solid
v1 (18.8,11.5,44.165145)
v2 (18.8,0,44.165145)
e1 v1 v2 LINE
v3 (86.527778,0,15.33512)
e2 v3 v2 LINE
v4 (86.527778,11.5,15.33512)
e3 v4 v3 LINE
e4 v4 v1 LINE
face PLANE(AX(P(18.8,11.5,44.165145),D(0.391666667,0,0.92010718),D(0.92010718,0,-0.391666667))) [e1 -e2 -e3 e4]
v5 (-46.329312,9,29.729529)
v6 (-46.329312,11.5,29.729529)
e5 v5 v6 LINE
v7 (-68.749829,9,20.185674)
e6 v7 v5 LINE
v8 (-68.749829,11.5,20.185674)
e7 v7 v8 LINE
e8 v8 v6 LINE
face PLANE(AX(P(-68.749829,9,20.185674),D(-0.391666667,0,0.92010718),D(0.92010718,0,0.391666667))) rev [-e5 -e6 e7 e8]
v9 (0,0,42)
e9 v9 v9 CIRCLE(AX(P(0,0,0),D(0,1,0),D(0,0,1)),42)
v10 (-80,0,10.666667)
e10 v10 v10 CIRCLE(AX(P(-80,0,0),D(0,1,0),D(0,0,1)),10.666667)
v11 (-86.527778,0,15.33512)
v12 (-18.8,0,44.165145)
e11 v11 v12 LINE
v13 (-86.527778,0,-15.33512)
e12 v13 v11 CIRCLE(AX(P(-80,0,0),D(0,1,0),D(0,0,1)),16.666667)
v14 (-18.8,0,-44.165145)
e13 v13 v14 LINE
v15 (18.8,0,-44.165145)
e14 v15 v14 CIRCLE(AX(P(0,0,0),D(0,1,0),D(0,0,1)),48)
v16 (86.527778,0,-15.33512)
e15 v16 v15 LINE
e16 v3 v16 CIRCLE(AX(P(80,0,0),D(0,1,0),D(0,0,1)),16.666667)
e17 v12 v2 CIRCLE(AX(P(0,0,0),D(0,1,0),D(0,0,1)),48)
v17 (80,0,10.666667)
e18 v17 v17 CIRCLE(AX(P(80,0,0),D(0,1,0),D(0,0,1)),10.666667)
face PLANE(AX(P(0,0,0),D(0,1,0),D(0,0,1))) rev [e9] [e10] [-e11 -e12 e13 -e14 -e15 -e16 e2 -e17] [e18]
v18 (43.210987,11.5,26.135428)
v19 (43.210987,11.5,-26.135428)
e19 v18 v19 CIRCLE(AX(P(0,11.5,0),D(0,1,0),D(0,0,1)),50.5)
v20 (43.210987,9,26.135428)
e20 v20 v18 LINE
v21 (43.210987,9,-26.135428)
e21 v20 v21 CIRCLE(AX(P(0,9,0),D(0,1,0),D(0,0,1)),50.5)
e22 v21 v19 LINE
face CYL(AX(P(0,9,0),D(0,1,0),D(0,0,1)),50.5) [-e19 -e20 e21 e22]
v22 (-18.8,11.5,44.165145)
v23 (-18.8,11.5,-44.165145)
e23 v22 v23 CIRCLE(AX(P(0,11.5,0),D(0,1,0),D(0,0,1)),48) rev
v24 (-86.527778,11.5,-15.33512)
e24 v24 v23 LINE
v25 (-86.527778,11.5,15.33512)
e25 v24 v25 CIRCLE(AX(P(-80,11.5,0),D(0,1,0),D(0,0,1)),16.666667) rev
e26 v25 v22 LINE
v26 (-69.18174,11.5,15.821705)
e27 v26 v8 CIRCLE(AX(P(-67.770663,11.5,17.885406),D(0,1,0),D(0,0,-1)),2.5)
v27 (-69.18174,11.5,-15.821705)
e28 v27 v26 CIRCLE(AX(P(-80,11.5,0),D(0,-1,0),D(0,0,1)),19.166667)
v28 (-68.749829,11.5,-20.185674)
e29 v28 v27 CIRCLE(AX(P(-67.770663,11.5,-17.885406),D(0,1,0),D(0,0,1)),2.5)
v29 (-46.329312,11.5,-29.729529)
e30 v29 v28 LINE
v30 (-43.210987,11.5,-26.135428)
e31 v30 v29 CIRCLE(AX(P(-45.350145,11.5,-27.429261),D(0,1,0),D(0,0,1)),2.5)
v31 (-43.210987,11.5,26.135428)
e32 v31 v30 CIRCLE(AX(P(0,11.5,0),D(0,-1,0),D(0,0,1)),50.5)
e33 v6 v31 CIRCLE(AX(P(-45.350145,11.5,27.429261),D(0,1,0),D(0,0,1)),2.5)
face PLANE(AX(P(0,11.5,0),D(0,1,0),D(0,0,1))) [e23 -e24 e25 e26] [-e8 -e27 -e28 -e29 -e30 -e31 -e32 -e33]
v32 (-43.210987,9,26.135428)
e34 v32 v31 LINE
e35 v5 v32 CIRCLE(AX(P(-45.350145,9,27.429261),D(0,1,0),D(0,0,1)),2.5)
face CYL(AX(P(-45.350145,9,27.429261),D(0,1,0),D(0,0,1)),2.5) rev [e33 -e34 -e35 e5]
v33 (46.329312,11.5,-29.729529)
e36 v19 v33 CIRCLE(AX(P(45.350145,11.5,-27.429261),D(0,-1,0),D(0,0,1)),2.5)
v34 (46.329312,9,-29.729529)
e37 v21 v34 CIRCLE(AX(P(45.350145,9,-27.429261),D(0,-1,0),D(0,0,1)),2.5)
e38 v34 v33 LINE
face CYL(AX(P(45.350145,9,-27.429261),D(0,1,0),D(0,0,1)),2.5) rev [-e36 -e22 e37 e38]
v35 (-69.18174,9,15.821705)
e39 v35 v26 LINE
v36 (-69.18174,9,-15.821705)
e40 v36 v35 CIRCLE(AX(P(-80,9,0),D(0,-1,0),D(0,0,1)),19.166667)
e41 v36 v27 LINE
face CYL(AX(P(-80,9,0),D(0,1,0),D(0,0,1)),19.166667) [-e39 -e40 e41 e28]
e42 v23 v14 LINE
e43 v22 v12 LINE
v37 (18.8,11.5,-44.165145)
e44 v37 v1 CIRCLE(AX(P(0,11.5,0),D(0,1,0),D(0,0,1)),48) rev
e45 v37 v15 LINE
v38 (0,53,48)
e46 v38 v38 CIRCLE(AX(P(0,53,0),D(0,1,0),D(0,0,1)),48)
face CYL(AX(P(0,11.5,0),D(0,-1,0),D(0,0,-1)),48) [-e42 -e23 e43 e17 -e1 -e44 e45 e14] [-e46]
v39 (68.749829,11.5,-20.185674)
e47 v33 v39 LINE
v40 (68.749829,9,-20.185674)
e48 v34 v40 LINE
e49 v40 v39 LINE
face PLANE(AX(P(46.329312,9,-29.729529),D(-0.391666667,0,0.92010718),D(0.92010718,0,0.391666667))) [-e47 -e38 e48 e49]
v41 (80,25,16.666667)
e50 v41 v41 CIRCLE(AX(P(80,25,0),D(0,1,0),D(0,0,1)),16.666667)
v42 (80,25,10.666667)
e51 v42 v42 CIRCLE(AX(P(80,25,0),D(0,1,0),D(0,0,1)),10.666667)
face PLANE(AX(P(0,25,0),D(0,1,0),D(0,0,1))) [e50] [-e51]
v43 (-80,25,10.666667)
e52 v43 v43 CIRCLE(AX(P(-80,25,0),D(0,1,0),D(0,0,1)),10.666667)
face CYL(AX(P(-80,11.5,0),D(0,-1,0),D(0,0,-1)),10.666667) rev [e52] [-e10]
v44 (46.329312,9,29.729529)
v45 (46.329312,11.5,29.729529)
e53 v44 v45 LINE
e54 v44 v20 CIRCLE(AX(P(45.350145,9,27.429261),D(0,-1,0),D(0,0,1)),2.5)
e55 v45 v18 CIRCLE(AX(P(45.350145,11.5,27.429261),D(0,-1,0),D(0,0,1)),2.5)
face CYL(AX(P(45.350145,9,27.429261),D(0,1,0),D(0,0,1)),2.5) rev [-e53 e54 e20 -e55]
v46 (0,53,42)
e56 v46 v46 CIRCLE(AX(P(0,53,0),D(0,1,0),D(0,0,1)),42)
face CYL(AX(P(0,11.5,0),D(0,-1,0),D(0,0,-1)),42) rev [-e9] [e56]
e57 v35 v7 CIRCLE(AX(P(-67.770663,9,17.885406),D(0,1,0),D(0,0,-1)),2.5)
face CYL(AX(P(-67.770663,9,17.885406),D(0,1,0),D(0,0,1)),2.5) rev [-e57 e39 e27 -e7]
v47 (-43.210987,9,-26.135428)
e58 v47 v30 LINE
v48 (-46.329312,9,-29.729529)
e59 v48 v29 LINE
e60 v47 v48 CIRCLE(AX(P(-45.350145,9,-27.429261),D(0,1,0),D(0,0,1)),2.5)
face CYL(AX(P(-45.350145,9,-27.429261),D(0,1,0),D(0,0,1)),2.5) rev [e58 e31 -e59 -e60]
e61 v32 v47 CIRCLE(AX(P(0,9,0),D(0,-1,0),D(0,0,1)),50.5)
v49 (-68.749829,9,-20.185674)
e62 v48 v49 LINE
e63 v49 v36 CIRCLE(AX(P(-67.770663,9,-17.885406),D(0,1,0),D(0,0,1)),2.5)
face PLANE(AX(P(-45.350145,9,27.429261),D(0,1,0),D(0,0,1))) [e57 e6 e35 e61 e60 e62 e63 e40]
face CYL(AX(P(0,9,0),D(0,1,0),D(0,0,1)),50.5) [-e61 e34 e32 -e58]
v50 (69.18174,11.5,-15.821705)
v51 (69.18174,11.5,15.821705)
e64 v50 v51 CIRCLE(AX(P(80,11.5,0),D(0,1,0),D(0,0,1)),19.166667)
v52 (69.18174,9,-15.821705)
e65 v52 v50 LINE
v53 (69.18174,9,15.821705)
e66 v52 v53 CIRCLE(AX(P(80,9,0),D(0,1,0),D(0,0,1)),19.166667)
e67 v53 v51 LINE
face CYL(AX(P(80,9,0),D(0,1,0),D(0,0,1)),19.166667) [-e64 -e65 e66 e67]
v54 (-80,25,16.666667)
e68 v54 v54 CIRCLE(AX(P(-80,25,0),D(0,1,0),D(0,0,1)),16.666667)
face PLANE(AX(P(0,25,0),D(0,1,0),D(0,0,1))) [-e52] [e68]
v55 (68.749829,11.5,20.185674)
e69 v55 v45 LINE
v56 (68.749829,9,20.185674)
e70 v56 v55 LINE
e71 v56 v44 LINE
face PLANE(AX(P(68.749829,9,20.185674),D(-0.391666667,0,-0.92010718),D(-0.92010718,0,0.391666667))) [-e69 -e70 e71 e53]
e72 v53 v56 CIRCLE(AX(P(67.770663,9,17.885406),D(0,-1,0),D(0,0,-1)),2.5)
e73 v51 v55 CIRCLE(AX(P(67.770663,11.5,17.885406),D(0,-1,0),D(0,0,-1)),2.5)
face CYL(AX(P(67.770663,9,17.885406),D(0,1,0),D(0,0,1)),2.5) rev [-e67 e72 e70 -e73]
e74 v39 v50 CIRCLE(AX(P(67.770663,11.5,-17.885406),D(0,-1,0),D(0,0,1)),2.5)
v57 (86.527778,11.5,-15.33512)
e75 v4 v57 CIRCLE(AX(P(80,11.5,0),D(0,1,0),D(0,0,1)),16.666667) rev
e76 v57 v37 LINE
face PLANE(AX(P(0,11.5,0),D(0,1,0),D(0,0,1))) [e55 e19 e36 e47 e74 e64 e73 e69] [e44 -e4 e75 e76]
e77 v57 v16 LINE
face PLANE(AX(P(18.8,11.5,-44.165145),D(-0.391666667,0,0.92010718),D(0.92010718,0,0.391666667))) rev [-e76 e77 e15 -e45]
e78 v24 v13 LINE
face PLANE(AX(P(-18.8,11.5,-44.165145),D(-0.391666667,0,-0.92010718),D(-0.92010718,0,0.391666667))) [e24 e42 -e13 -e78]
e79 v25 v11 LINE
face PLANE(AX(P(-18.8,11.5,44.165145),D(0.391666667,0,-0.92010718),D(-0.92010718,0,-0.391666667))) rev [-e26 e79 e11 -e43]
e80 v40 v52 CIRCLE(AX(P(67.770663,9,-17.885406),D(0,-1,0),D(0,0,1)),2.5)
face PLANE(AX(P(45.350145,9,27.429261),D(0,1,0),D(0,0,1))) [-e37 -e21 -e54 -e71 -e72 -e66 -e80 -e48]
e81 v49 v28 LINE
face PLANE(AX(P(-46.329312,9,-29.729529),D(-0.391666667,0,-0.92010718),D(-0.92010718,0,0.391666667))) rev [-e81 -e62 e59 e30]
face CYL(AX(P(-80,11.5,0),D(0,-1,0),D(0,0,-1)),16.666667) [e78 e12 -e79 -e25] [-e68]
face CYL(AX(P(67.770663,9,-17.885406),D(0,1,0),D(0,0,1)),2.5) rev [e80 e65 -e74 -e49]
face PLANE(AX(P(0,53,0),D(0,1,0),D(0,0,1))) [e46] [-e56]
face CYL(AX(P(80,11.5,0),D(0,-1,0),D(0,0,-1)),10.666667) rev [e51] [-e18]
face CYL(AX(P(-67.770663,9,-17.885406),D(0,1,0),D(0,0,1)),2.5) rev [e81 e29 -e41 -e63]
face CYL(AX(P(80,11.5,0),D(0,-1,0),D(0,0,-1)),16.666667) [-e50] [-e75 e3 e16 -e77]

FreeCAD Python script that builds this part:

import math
import FreeCAD as App
import Part
import Sketcher
from FreeCAD import Vector
Q = App.Units.Quantity

doc = App.newDocument("Part")
params = doc.addObject("Spreadsheet::Sheet", "Params")
for row, (alias, value) in enumerate([
    ("sketch1_diameter", "84 mm"),
    ("sketch1_radius", "48 mm"),
    ("pad1_length", "11.5 mm"),
    ("pad2_length", "25 mm"),
    ("sketch3_diameter", "96 mm"),
    ("sketch3_diameter2", "84 mm"),
    ("pad3_length", "53 mm"),
    ("sketch4_radius", "2.5 mm"),
    ("sketch4_radius2", "50.5 mm"),
    ("pocket1_length", "2.5 mm"),
], start=1):
    params.set(f"A{row}", alias)
    params.set(f"B{row}", "=" + value)
    params.setAlias(f"B{row}", alias)

body = doc.addObject("PartDesign::Body", "Body")

sketch1 = body.newObject("Sketcher::SketchObject", "Sketch")
sketch1.AttachmentSupport = (doc.getObject("XZ_Plane"), [""])
sketch1.MapMode = "FlatFace"
sketch1.addGeometry(Part.LineSegment(Vector(-19, -44, 0), Vector(-87, -15, 0)), False)
sketch1.addGeometry(Part.ArcOfCircle(Part.Circle(Vector(-80, 0, 0), Vector(0, 0, 1), 17), math.radians(113), math.radians(247)), False)
sketch1.addGeometry(Part.LineSegment(Vector(-87, 15, 0), Vector(-19, 44, 0)), False)
sketch1.addGeometry(Part.ArcOfCircle(Part.Circle(Vector(0, 0, 0), Vector(0, 0, 1), 48), math.radians(67), math.radians(113)), False)
sketch1.addGeometry(Part.LineSegment(Vector(19, 44, 0), Vector(87, 15, 0)), False)
sketch1.addGeometry(Part.ArcOfCircle(Part.Circle(Vector(80, 0, 0), Vector(0, 0, 1), 17), math.radians(-67), math.radians(67)), False)
sketch1.addGeometry(Part.LineSegment(Vector(87, -15, 0), Vector(19, -44, 0)), False)
sketch1.addGeometry(Part.ArcOfCircle(Part.Circle(Vector(0, 0, 0), Vector(0, 0, 1), 48), math.radians(-113), math.radians(-67)), False)
sketch1.addGeometry(Part.Circle(Vector(-80, 0, 0), Vector(0, 0, 1), 11), False)
sketch1.addGeometry(Part.Circle(Vector(0, 0, 0), Vector(0, 0, 1), 42), False)
sketch1.addGeometry(Part.Circle(Vector(80, 0, 0), Vector(0, 0, 1), 11), False)
sketch1.addConstraint(Sketcher.Constraint("Tangent", 0, 2, 1, 2))
sketch1.addConstraint(Sketcher.Constraint("Tangent", 1, 1, 2, 1))
sketch1.addConstraint(Sketcher.Constraint("Tangent", 2, 2, 3, 2))
sketch1.addConstraint(Sketcher.Constraint("Tangent", 3, 1, 4, 1))
sketch1.addConstraint(Sketcher.Constraint("Tangent", 4, 2, 5, 2))
sketch1.addConstraint(Sketcher.Constraint("Tangent", 5, 1, 6, 1))
sketch1.addConstraint(Sketcher.Constraint("Tangent", 6, 2, 7, 2))
sketch1.addConstraint(Sketcher.Constraint("Tangent", 7, 1, 0, 1))
sketch1.addConstraint(Sketcher.Constraint("Coincident", 3, 3, -1, 1))
sketch1.addConstraint(Sketcher.Constraint("Coincident", 7, 3, -1, 1))
sketch1.addConstraint(Sketcher.Constraint("Coincident", 9, 3, -1, 1))
sketch1.addConstraint(Sketcher.Constraint("Coincident", 8, 3, 1, 3))
sketch1.addConstraint(Sketcher.Constraint("Coincident", 10, 3, 5, 3))
sketch1.addConstraint(Sketcher.Constraint("Equal", 1, 5))
sketch1.addConstraint(Sketcher.Constraint("Equal", 3, 7))
sketch1.addConstraint(Sketcher.Constraint("Equal", 8, 10))
sketch1.addConstraint(Sketcher.Constraint("Symmetric", 1, 3, 5, 3, -1, 1))
sketch1.addConstraint(Sketcher.Constraint("PointOnObject", 1, 3, -1))
sketch1.addConstraint(Sketcher.Constraint("Diameter", 9, Q("84 mm")))
sketch1.addConstraint(Sketcher.Constraint("Radius", 3, Q("48 mm")))
sketch1.addConstraint(Sketcher.Constraint("DistanceX", 1, 3, -1, 1, Q("80 mm")))
sketch1.addConstraint(Sketcher.Constraint("DistanceX", 2, 2, -1, 1, Q("18.8 mm")))
sketch1.addConstraint(Sketcher.Constraint("Diameter", 8, Q("21.333333 mm")))
sketch1.setExpression("Constraints[18]", "Params.sketch1_diameter")
sketch1.setExpression("Constraints[19]", "Params.sketch1_radius")
pad1 = body.newObject("PartDesign::Pad", "Pad")
pad1.Profile = sketch1
pad1.setExpression("Length", "Params.pad1_length")
pad1.Reversed = True

sketch2 = body.newObject("Sketcher::SketchObject", "Sketch001")
sketch2.AttachmentSupport = (doc.getObject("XZ_Plane"), [""])
sketch2.MapMode = "FlatFace"
sketch2.addGeometry(Part.Circle(Vector(-80, 0, 0), Vector(0, 0, 1), 17), False)
sketch2.addGeometry(Part.Circle(Vector(-80, 0, 0), Vector(0, 0, 1), 11), False)
sketch2.addGeometry(Part.Circle(Vector(80, 0, 0), Vector(0, 0, 1), 17), False)
sketch2.addGeometry(Part.Circle(Vector(80, 0, 0), Vector(0, 0, 1), 11), False)
sketch2.addConstraint(Sketcher.Constraint("Coincident", 1, 3, 0, 3))
sketch2.addConstraint(Sketcher.Constraint("Coincident", 3, 3, 2, 3))
sketch2.addConstraint(Sketcher.Constraint("Equal", 0, 2))
sketch2.addConstraint(Sketcher.Constraint("Equal", 1, 3))
sketch2.addConstraint(Sketcher.Constraint("Symmetric", 0, 3, 2, 3, -1, 1))
sketch2.addConstraint(Sketcher.Constraint("PointOnObject", 0, 3, -1))
sketch2.addConstraint(Sketcher.Constraint("DistanceX", 0, 3, -1, 1, Q("80 mm")))
sketch2.addConstraint(Sketcher.Constraint("Diameter", 0, Q("33.333333 mm")))
sketch2.addConstraint(Sketcher.Constraint("Diameter", 1, Q("21.333333 mm")))
pad2 = body.newObject("PartDesign::Pad", "Pad001")
pad2.Profile = sketch2
pad2.setExpression("Length", "Params.pad2_length")
pad2.Reversed = True

sketch3 = body.newObject("Sketcher::SketchObject", "Sketch002")
sketch3.AttachmentSupport = (doc.getObject("XZ_Plane"), [""])
sketch3.MapMode = "FlatFace"
sketch3.addGeometry(Part.Circle(Vector(0, 0, 0), Vector(0, 0, 1), 48), False)
sketch3.addGeometry(Part.Circle(Vector(0, 0, 0), Vector(0, 0, 1), 42), False)
sketch3.addConstraint(Sketcher.Constraint("Coincident", 0, 3, -1, 1))
sketch3.addConstraint(Sketcher.Constraint("Coincident", 1, 3, -1, 1))
sketch3.addConstraint(Sketcher.Constraint("Diameter", 0, Q("96 mm")))
sketch3.addConstraint(Sketcher.Constraint("Diameter", 1, Q("84 mm")))
sketch3.setExpression("Constraints[2]", "Params.sketch3_diameter")
sketch3.setExpression("Constraints[3]", "Params.sketch3_diameter2")
pad3 = body.newObject("PartDesign::Pad", "Pad002")
pad3.Profile = sketch3
pad3.setExpression("Length", "Params.pad3_length")
pad3.Reversed = True

sketch4 = body.newObject("Sketcher::SketchObject", "Sketch003")
sketch4.AttachmentSupport = (doc.getObject("XZ_Plane"), [""])
sketch4.MapMode = "FlatFace"
sketch4.AttachmentOffset = App.Placement(Vector(0, 0, -11.5), App.Rotation())
sketch4.addGeometry(Part.LineSegment(Vector(-68.7, 20.2, 0), Vector(-46.3, 29.7, 0)), False)
sketch4.addGeometry(Part.ArcOfCircle(Part.Circle(Vector(-45.4, 27.4, 0), Vector(0, 0, 1), 2.5), math.radians(-31), math.radians(113)), False)
sketch4.addGeometry(Part.ArcOfCircle(Part.Circle(Vector(0, 0, 0), Vector(0, 0, 1), 50.5), math.radians(149), math.radians(211)), False)
sketch4.addGeometry(Part.ArcOfCircle(Part.Circle(Vector(-45.4, -27.4, 0), Vector(0, 0, 1), 2.5), math.radians(-113), math.radians(31)), False)
sketch4.addGeometry(Part.LineSegment(Vector(-46.3, -29.7, 0), Vector(-68.7, -20.2, 0)), False)
sketch4.addGeometry(Part.ArcOfCircle(Part.Circle(Vector(-67.8, -17.9, 0), Vector(0, 0, 1), 2.5), math.radians(124), math.radians(247)), False)
sketch4.addGeometry(Part.ArcOfCircle(Part.Circle(Vector(-80, 0, 0), Vector(0, 0, 1), 19.2), math.radians(-56), math.radians(56)), False)
sketch4.addGeometry(Part.ArcOfCircle(Part.Circle(Vector(-67.8, 17.9, 0), Vector(0, 0, 1), 2.5), math.radians(113), math.radians(236)), False)
sketch4.addConstraint(Sketcher.Constraint("Tangent", 0, 2, 1, 2))
sketch4.addConstraint(Sketcher.Constraint("Tangent", 1, 1, 2, 1))
sketch4.addConstraint(Sketcher.Constraint("Tangent", 2, 2, 3, 2))
sketch4.addConstraint(Sketcher.Constraint("Tangent", 3, 1, 4, 1))
sketch4.addConstraint(Sketcher.Constraint("Tangent", 4, 2, 5, 2))
sketch4.addConstraint(Sketcher.Constraint("Tangent", 5, 1, 6, 1))
sketch4.addConstraint(Sketcher.Constraint("Tangent", 6, 2, 7, 2))
sketch4.addConstraint(Sketcher.Constraint("Tangent", 7, 1, 0, 1))
sketch4.addConstraint(Sketcher.Constraint("Coincident", 2, 3, -1, 1))
sketch4.addConstraint(Sketcher.Constraint("Equal", 1, 3))
sketch4.addConstraint(Sketcher.Constraint("Equal", 3, 5))
sketch4.addConstraint(Sketcher.Constraint("Equal", 5, 7))
sketch4.addConstraint(Sketcher.Constraint("Symmetric", 5, 3, 7, 3, -1))
sketch4.addConstraint(Sketcher.Constraint("Vertical", 1, 3, 3, 3))
sketch4.addConstraint(Sketcher.Constraint("Radius", 1, Q("2.5 mm")))
sketch4.addConstraint(Sketcher.Constraint("Radius", 2, Q("50.5 mm")))
sketch4.addConstraint(Sketcher.Constraint("DistanceX", 6, 3, -1, 1, Q("80 mm")))
sketch4.addConstraint(Sketcher.Constraint("Radius", 6, Q("19.166667 mm")))
sketch4.addConstraint(Sketcher.Constraint("DistanceY", 1, 1, 0, 2, Q("3.594101 mm")))
sketch4.addConstraint(Sketcher.Constraint("DistanceY", 5, 3, 5, 1, Q("2.063701 mm")))
sketch4.setExpression("Constraints[14]", "Params.sketch4_radius")
sketch4.setExpression("Constraints[15]", "Params.sketch4_radius2")
pocket1 = body.newObject("PartDesign::Pocket", "Pocket")
pocket1.Profile = sketch4
pocket1.setExpression("Length", "Params.pocket1_length")
pocket1.Reversed = True
doc.recompute()

mirrored = body.newObject("PartDesign::Mirrored", "Mirrored")
mirrored.Originals = [pocket1]
mirrored.MirrorPlane = (doc.getObject("YZ_Plane"), [""])
body.Tip = mirrored

doc.recompute()
